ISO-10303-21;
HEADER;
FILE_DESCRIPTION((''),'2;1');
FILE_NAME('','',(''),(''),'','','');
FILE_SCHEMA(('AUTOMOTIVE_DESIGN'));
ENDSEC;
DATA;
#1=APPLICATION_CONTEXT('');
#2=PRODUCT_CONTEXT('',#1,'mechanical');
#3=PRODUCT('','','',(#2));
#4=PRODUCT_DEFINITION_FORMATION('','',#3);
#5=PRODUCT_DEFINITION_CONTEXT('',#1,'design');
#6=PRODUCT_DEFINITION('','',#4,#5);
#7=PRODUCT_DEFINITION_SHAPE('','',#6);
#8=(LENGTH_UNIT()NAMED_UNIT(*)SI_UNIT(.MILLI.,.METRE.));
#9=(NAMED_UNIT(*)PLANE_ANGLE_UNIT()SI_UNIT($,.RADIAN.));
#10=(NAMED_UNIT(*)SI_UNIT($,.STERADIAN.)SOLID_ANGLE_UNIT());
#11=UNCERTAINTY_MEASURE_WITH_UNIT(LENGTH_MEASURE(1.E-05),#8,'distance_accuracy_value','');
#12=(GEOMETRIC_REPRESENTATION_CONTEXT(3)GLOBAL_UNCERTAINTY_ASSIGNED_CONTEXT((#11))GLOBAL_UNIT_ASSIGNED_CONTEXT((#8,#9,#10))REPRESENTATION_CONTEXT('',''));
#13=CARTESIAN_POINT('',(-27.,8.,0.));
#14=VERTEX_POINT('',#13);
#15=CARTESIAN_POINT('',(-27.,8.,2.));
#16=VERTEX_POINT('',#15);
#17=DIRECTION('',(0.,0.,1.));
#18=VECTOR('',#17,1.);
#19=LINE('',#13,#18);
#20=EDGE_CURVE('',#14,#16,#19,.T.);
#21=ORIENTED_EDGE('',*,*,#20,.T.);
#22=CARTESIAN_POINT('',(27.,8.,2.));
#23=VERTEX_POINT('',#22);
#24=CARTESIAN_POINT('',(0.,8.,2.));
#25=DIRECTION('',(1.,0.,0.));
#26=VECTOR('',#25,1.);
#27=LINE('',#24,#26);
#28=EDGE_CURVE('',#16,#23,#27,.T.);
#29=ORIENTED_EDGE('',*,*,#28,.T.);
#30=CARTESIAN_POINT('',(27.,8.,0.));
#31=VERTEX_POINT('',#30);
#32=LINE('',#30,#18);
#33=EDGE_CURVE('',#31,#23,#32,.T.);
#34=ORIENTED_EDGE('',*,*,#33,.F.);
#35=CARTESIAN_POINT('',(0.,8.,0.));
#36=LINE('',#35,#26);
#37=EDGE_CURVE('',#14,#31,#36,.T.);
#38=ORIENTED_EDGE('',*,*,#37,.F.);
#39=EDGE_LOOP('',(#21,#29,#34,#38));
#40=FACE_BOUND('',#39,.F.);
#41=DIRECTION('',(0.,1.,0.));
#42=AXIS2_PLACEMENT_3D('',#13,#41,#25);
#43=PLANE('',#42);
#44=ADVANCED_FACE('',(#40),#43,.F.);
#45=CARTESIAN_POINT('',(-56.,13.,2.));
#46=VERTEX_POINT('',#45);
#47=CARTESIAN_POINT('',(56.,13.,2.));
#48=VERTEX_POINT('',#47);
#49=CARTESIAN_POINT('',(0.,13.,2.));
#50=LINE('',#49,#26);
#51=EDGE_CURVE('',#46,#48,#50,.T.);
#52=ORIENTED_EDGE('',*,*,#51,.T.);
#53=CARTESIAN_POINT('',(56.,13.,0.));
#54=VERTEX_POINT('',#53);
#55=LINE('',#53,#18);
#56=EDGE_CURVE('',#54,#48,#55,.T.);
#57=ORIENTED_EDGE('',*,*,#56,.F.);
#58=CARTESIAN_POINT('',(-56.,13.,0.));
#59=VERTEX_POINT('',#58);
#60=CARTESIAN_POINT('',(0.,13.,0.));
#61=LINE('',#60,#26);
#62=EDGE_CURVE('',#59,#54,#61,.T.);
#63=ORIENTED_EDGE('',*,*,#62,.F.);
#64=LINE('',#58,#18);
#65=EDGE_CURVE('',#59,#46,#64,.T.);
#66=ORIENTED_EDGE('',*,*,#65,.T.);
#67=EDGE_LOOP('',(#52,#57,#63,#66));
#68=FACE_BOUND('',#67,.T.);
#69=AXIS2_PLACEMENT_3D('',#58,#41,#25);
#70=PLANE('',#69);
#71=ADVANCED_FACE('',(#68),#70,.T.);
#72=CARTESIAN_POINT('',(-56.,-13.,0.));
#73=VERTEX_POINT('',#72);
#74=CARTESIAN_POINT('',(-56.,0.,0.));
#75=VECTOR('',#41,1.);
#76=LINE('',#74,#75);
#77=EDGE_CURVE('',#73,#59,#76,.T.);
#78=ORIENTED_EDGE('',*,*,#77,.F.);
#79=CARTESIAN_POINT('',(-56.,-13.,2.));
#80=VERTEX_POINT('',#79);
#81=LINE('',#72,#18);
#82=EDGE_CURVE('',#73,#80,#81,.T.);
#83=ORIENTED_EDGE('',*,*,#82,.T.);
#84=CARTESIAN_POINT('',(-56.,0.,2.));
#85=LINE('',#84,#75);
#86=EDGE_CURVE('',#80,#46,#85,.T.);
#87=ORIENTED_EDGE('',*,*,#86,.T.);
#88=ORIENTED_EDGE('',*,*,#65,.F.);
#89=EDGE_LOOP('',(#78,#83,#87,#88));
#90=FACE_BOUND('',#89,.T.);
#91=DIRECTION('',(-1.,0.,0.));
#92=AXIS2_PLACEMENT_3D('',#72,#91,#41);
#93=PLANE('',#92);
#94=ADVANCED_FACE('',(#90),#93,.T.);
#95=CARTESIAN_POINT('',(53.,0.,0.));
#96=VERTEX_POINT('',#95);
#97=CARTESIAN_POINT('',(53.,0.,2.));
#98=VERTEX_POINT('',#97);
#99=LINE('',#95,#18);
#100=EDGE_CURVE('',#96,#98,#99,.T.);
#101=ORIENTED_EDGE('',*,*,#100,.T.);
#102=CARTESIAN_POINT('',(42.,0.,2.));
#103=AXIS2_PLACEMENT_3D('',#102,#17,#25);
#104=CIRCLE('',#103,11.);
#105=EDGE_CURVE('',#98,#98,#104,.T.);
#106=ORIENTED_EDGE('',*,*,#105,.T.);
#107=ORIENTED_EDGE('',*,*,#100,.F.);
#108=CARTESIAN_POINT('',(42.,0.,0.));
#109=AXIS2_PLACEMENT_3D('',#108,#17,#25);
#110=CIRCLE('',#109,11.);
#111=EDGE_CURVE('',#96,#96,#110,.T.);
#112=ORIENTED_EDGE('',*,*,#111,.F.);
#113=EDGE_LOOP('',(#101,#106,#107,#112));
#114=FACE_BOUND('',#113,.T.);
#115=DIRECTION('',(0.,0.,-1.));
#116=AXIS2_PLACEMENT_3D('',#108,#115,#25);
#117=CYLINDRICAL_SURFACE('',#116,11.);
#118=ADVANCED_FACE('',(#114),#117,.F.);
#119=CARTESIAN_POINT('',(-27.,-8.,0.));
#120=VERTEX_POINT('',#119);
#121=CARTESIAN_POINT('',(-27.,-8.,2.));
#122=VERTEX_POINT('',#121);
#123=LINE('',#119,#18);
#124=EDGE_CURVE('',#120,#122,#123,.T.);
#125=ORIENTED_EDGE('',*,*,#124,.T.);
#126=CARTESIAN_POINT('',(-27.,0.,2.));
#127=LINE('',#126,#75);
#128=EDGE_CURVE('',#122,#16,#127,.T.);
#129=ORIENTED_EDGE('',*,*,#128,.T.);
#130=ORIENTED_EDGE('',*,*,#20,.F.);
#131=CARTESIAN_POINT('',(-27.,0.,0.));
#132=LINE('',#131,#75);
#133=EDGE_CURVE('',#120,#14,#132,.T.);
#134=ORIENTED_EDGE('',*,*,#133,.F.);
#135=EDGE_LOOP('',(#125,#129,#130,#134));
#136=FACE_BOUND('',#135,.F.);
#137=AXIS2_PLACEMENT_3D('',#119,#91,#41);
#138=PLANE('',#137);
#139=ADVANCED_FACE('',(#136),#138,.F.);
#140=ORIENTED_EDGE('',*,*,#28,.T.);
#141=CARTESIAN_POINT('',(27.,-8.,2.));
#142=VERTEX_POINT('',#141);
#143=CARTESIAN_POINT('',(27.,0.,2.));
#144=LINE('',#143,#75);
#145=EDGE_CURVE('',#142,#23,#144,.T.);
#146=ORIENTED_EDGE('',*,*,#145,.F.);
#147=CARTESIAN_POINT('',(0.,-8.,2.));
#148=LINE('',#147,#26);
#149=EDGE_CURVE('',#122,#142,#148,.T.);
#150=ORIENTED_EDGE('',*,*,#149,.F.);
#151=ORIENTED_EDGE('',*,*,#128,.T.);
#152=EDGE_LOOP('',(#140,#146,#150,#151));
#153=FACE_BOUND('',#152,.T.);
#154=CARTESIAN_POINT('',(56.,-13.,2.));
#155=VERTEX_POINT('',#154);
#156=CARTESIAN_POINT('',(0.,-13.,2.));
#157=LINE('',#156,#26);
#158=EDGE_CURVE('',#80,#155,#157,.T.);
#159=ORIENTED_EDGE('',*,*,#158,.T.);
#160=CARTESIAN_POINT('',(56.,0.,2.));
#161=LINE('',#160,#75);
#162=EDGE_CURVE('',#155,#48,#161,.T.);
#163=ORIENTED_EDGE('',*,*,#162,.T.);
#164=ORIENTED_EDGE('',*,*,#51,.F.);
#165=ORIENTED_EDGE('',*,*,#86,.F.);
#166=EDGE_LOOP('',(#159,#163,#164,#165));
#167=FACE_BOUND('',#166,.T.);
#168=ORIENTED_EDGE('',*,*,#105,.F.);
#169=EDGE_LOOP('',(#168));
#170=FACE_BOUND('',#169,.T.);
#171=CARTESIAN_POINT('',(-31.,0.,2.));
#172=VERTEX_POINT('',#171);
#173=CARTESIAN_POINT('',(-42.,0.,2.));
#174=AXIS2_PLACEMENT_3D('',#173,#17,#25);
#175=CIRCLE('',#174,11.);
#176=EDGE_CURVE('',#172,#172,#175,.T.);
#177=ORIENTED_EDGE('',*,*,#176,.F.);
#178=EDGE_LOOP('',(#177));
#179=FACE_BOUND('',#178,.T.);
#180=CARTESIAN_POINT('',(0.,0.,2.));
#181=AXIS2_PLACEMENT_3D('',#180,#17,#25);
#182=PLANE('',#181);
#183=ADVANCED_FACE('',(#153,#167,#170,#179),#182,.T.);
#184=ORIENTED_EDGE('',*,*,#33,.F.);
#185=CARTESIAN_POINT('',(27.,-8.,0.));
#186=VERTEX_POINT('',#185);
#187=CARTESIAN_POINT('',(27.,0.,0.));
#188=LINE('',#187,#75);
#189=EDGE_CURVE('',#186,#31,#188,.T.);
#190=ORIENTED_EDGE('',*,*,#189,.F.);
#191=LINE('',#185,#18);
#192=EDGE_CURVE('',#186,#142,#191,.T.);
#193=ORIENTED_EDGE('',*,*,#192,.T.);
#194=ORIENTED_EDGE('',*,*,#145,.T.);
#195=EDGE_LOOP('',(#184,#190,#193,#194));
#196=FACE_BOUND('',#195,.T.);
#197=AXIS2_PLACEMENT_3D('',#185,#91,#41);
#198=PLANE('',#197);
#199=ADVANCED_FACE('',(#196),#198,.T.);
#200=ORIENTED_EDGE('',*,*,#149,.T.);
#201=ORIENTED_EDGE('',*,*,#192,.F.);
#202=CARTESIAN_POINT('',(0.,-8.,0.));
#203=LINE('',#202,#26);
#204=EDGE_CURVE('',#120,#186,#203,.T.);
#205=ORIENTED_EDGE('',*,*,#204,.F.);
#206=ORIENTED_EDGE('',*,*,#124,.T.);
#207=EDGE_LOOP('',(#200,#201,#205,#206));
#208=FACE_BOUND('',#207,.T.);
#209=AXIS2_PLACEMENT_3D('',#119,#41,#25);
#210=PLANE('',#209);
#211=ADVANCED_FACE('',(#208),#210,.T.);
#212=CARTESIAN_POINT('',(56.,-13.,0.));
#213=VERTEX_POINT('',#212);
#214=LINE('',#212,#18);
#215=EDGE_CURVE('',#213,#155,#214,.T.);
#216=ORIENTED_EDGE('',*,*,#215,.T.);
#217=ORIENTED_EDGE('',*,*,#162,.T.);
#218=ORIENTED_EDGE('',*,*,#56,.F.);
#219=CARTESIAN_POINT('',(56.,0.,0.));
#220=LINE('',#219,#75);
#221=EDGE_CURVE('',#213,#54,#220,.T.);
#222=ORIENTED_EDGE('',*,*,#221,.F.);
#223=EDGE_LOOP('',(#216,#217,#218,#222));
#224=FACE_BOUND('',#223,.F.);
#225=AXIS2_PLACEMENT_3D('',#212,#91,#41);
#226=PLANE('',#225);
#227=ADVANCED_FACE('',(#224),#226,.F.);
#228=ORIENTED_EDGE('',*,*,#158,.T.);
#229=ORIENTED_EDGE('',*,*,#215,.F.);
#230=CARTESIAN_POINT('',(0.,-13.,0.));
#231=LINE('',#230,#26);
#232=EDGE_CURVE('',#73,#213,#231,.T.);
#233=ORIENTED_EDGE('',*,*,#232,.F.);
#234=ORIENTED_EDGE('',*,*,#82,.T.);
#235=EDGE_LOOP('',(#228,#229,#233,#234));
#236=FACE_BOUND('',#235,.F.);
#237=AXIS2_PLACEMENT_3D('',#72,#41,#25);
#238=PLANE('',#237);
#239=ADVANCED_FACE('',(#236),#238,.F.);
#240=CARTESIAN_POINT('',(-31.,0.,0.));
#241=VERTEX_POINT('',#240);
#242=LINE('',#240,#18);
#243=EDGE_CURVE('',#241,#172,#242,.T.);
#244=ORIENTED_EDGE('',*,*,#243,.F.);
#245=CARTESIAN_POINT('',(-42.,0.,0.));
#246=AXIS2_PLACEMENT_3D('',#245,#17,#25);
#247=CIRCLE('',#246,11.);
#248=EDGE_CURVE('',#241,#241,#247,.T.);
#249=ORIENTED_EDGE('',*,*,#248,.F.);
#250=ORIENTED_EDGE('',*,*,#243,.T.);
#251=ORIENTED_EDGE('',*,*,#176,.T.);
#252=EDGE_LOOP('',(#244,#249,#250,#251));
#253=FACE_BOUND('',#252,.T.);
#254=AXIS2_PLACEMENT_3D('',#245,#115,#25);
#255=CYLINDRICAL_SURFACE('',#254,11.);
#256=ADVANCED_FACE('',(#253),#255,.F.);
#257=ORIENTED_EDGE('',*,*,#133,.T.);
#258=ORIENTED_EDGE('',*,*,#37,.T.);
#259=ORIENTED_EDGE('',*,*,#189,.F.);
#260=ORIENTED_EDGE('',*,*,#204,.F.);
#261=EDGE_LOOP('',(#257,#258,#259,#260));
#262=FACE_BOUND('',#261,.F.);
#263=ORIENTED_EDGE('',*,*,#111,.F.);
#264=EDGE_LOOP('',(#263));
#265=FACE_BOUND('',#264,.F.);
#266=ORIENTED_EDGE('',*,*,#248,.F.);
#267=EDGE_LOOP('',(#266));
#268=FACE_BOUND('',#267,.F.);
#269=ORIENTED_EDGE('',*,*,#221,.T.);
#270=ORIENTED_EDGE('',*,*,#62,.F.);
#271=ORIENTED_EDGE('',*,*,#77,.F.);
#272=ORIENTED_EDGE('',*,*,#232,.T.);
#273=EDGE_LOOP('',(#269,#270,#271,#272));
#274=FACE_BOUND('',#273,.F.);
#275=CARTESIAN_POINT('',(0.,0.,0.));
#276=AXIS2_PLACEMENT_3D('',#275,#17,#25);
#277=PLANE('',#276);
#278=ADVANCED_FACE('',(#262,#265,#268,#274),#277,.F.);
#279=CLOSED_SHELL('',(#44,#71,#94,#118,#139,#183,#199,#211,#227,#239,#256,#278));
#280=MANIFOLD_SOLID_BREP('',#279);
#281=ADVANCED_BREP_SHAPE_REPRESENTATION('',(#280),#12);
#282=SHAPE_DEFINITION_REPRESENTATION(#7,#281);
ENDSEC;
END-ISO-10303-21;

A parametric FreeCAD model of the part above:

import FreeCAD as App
import Part
import Sketcher
from FreeCAD import Vector
Q = App.Units.Quantity


def add_polygon(sketch, points):
    """Adds a closed chain of lines whose ends are joined by coincident constraints."""
    first, n = sketch.GeometryCount, len(points)
    for a, b in zip(points, points[1:] + points[:1]):
        sketch.addGeometry(Part.LineSegment(App.Vector(*a, 0), App.Vector(*b, 0)), False)
    for i in range(n):
        sketch.addConstraint(Sketcher.Constraint("Coincident", first + i, 2, first + (i + 1) % n, 1))

doc = App.newDocument("Part")
body = doc.addObject("PartDesign::Body", "Body")

# Sketch on XY plane
sketch1 = body.newObject("Sketcher::SketchObject", "Sketch")
sketch1.AttachmentSupport = (doc.getObject("XY_Plane"), [""])
sketch1.MapMode = "FlatFace"
add_polygon(sketch1, [(-56, 13), (-56, -13), (56, -13), (56, 13)])  # lines 0-3
sketch1.addGeometry(Part.Circle(Vector(-42, 0, 0), Vector(0, 0, 1), 11), False)  # 4
add_polygon(sketch1, [(27, -8), (-27, -8), (-27, 8), (27, 8)])  # lines 5-8
sketch1.addGeometry(Part.Circle(Vector(42, 0, 0), Vector(0, 0, 1), 11), False)  # 9
sketch1.addConstraint([
    Sketcher.Constraint("Vertical", 0),
    Sketcher.Constraint("Horizontal", 1),
    Sketcher.Constraint("Vertical", 2),
    Sketcher.Constraint("Horizontal", 3),
    Sketcher.Constraint("Horizontal", 5),
    Sketcher.Constraint("Vertical", 6),
    Sketcher.Constraint("Horizontal", 7),
    Sketcher.Constraint("Vertical", 8),
    Sketcher.Constraint("Equal", 4, 9),
    Sketcher.Constraint("Symmetric", 4, 3, 9, 3, -1, 1),
    Sketcher.Constraint("Symmetric", 0, 2, 2, 2, -1, 1),
    Sketcher.Constraint("Symmetric", 5, 2, 7, 2, -1, 1),
    Sketcher.Constraint("PointOnObject", 4, 3, -1),
    Sketcher.Constraint("Diameter", 4, Q("22 mm")),
    Sketcher.Constraint("DistanceX", 1, 1, 1, 2, Q("112 mm")),
    Sketcher.Constraint("DistanceX", 5, 2, 5, 1, Q("54 mm")),
    Sketcher.Constraint("DistanceY", 0, 2, 0, 1, Q("26 mm")),
    Sketcher.Constraint("DistanceY", 6, 1, 6, 2, Q("16 mm")),
    Sketcher.Constraint("DistanceX", 4, 3, -1, 1, Q("42 mm")),
])
pad1 = body.newObject("PartDesign::Pad", "Pad")
pad1.Profile = sketch1
pad1.Length = 2

doc.recompute()
